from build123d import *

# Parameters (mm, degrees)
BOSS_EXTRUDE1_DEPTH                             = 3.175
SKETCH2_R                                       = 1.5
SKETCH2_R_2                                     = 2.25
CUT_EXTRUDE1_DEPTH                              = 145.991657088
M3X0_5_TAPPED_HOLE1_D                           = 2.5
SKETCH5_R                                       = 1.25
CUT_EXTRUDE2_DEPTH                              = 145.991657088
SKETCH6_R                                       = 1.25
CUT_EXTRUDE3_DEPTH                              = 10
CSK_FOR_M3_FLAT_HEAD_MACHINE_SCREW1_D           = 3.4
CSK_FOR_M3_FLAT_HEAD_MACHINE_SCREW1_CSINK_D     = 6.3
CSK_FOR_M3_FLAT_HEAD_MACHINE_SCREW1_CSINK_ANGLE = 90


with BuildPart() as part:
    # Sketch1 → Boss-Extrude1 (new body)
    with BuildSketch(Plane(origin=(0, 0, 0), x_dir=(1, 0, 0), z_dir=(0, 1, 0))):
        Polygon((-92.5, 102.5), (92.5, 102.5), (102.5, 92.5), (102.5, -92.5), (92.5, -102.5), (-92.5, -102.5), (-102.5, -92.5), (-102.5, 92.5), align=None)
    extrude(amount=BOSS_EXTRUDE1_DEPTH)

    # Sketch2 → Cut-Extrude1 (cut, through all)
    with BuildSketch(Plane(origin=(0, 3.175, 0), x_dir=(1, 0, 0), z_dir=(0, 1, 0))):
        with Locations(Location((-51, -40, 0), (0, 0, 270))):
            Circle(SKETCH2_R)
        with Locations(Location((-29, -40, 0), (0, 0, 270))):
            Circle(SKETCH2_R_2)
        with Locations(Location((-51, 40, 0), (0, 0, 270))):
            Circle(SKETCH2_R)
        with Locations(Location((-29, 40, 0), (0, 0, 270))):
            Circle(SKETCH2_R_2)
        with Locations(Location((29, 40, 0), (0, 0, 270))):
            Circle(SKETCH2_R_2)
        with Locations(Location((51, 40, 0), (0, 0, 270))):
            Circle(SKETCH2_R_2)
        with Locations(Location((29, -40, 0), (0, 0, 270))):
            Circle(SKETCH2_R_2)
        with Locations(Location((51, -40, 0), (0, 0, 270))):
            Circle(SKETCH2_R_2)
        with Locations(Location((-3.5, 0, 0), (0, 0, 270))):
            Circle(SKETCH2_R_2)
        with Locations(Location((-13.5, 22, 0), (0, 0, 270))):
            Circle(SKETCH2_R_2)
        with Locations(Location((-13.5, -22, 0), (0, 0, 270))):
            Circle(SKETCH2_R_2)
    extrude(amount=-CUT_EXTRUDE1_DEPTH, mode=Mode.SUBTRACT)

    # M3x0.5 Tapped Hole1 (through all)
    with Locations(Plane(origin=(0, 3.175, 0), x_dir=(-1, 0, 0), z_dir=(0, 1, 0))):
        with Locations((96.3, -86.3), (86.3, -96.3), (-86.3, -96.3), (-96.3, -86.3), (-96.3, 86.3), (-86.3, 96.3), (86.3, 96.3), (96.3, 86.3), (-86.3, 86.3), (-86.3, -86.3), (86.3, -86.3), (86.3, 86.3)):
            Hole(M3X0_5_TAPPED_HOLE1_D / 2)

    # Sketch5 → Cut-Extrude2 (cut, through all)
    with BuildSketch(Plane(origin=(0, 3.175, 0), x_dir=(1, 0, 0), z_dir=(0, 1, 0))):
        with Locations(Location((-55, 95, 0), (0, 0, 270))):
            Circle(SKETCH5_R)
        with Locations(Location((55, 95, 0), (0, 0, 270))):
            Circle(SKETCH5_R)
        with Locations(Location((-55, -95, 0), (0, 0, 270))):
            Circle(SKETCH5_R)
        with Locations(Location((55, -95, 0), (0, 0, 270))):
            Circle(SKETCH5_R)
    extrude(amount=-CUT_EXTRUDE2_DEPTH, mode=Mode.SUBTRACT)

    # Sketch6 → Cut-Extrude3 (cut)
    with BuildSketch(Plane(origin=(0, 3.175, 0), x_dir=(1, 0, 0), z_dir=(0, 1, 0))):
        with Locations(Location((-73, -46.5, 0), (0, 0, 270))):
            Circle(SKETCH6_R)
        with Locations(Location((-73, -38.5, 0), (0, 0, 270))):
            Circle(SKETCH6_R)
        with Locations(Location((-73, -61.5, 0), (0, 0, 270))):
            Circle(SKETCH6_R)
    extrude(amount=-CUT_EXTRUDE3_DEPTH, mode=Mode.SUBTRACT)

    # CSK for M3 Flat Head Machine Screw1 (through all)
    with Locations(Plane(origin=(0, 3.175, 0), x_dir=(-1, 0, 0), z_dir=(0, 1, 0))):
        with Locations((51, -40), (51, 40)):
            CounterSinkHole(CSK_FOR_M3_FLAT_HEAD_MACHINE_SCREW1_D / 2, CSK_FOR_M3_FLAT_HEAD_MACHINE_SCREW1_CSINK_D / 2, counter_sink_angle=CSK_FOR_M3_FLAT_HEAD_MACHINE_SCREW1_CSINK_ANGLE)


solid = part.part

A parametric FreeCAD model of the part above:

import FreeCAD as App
import Part
import Sketcher

doc = App.newDocument("Part")
params = doc.addObject("Spreadsheet::Sheet", "Params")
for row, (alias, value) in enumerate([
    ("sketch1_width", "185 mm"),
    ("pad1_length", "3.175 mm"),
    ("sketch2_diameter", "3 mm"),
    ("sketch2_diameter2", "4.5 mm"),
    ("sketch3_diameter", "2.5 mm"),
    ("hole_diameter", "2.5 mm"),
    ("sketch4_diameter", "2.5 mm"),
    ("sketch5_diameter", "2.5 mm"),
    ("pocket3_length", "10 mm"),
    ("sketch6_diameter", "3.4 mm"),
    ("hole2_diameter", "3.4 mm"),
    ("hole2_csink_diameter", "6.3 mm"),
], start=1):
    params.set(f"A{row}", alias)
    params.set(f"B{row}", "=" + value)
    params.setAlias(f"B{row}", alias)

body = doc.addObject("PartDesign::Body", "Body")

# Sketch on XZ plane
sketch1 = body.newObject("Sketcher::SketchObject", "Sketch")
sketch1.AttachmentSupport = (doc.getObject("XZ_Plane"), [""])
sketch1.MapMode = "FlatFace"
sketch1.addGeometry(Part.LineSegment(App.Vector(92, -102, 0), App.Vector(-92, -102, 0)), False)
sketch1.addGeometry(Part.LineSegment(App.Vector(-92, -102, 0), App.Vector(-102, -92, 0)), False)
sketch1.addGeometry(Part.LineSegment(App.Vector(-102, -92, 0), App.Vector(-102, 92, 0)), False)
sketch1.addGeometry(Part.LineSegment(App.Vector(-102, 92, 0), App.Vector(-92, 102, 0)), False)
sketch1.addGeometry(Part.LineSegment(App.Vector(-92, 102, 0), App.Vector(92, 102, 0)), False)
sketch1.addGeometry(Part.LineSegment(App.Vector(92, 102, 0), App.Vector(102, 92, 0)), False)
sketch1.addGeometry(Part.LineSegment(App.Vector(102, 92, 0), App.Vector(102, -92, 0)), False)
sketch1.addGeometry(Part.LineSegment(App.Vector(102, -92, 0), App.Vector(92, -102, 0)), False)
sketch1.addConstraint(Sketcher.Constraint("Coincident", 0, 2, 1, 1))
sketch1.addConstraint(Sketcher.Constraint("Coincident", 1, 2, 2, 1))
sketch1.addConstraint(Sketcher.Constraint("Coincident", 2, 2, 3, 1))
sketch1.addConstraint(Sketcher.Constraint("Coincident", 3, 2, 4, 1))
sketch1.addConstraint(Sketcher.Constraint("Coincident", 4, 2, 5, 1))
sketch1.addConstraint(Sketcher.Constraint("Coincident", 5, 2, 6, 1))
sketch1.addConstraint(Sketcher.Constraint("Coincident", 6, 2, 7, 1))
sketch1.addConstraint(Sketcher.Constraint("Coincident", 7, 2, 0, 1))
sketch1.addConstraint(Sketcher.Constraint("Horizontal", 0))
sketch1.addConstraint(Sketcher.Constraint("Vertical", 2))
sketch1.addConstraint(Sketcher.Constraint("Horizontal", 4))
sketch1.addConstraint(Sketcher.Constraint("Vertical", 6))
sketch1.addConstraint(Sketcher.Constraint("Symmetric", 0, 2, 4, 2, -1, 1))
sketch1.addConstraint(Sketcher.Constraint("Symmetric", 1, 2, 5, 2, -1, 1))
sketch1.addConstraint(Sketcher.Constraint("Perpendicular", 1, 3))
sketch1.addConstraint(Sketcher.Constraint("Perpendicular", 5, 7))
sketch1.addConstraint(Sketcher.Constraint("Horizontal", 2, 2, 5, 2))
sketch1.addConstraint(Sketcher.Constraint("Horizontal", 1, 2, 6, 2))
sketch1.addConstraint(Sketcher.Constraint("Vertical", 0, 2, 3, 2))
sketch1.addConstraint(Sketcher.Constraint("Equal", 4, 2))
sketch1.addConstraint(Sketcher.Constraint("DistanceX", 0, 2, 0, 1, 185.0))
sketch1.addConstraint(Sketcher.Constraint("DistanceX", 1, 2, 0, 2, 10.0))
sketch1.setExpression("Constraints[20]", "Params.sketch1_width")
pad1 = body.newObject("PartDesign::Pad", "Pad")
pad1.Profile = sketch1
pad1.setExpression("Length", "Params.pad1_length")
pad1.Reversed = True

# Sketch on XZ plane
sketch2 = body.newObject("Sketcher::SketchObject", "Sketch001")
sketch2.AttachmentSupport = (doc.getObject("XZ_Plane"), [""])
sketch2.MapMode = "FlatFace"
sketch2.AttachmentOffset = App.Placement(App.Vector(0, 0, -3.175), App.Rotation())
sketch2.addGeometry(Part.Circle(App.Vector(-51, 40, 0), App.Vector(0, 0, 1), 1.5), False)
sketch2.addGeometry(Part.Circle(App.Vector(-29, 40, 0), App.Vector(0, 0, 1), 2.2), False)
sketch2.addGeometry(Part.Circle(App.Vector(-51, -40, 0), App.Vector(0, 0, 1), 1.5), False)
sketch2.addGeometry(Part.Circle(App.Vector(-29, -40, 0), App.Vector(0, 0, 1), 2.2), False)
sketch2.addGeometry(Part.Circle(App.Vector(29, -40, 0), App.Vector(0, 0, 1), 2.2), False)
sketch2.addGeometry(Part.Circle(App.Vector(51, -40, 0), App.Vector(0, 0, 1), 2.2), False)
sketch2.addGeometry(Part.Circle(App.Vector(29, 40, 0), App.Vector(0, 0, 1), 2.2), False)
sketch2.addGeometry(Part.Circle(App.Vector(51, 40, 0), App.Vector(0, 0, 1), 2.2), False)
sketch2.addGeometry(Part.Circle(App.Vector(-3.5, 0, 0), App.Vector(0, 0, 1), 2.2), False)
sketch2.addGeometry(Part.Circle(App.Vector(-13.5, -22, 0), App.Vector(0, 0, 1), 2.2), False)
sketch2.addGeometry(Part.Circle(App.Vector(-13.5, 22, 0), App.Vector(0, 0, 1), 2.2), False)
sketch2.addConstraint(Sketcher.Constraint("Equal", 0, 2))
sketch2.addConstraint(Sketcher.Constraint("Equal", 1, 3))
sketch2.addConstraint(Sketcher.Constraint("Equal", 3, 4))
sketch2.addConstraint(Sketcher.Constraint("Equal", 4, 5))
sketch2.addConstraint(Sketcher.Constraint("Equal", 5, 6))
sketch2.addConstraint(Sketcher.Constraint("Equal", 6, 7))
sketch2.addConstraint(Sketcher.Constraint("Equal", 7, 8))
sketch2.addConstraint(Sketcher.Constraint("Equal", 8, 9))
sketch2.addConstraint(Sketcher.Constraint("Equal", 9, 10))
sketch2.addConstraint(Sketcher.Constraint("Symmetric", 1, 3, 4, 3, -1, 1))
sketch2.addConstraint(Sketcher.Constraint("Symmetric", 0, 3, 5, 3, -1, 1))
sketch2.addConstraint(Sketcher.Constraint("Symmetric", 3, 3, 6, 3, -1, 1))
sketch2.addConstraint(Sketcher.Constraint("Symmetric", 2, 3, 7, 3, -1, 1))
sketch2.addConstraint(Sketcher.Constraint("Symmetric", 3, 3, 4, 3, -2))
sketch2.addConstraint(Sketcher.Constraint("Symmetric", 2, 3, 5, 3, -2))
sketch2.addConstraint(Sketcher.Constraint("Symmetric", 9, 3, 10, 3, -1))
sketch2.addConstraint(Sketcher.Constraint("PointOnObject", 8, 3, -1))
sketch2.addConstraint(Sketcher.Constraint("Horizontal", 0, 3, 1, 3))
sketch2.addConstraint(Sketcher.Constraint("Diameter", 0, 3.0))
sketch2.addConstraint(Sketcher.Constraint("Diameter", 1, 4.5))
sketch2.addConstraint(Sketcher.Constraint("DistanceX", 0, 3, -1, 1, 51.0))
sketch2.addConstraint(Sketcher.Constraint("DistanceY", -1, 1, 0, 3, 40.0))
sketch2.addConstraint(Sketcher.Constraint("DistanceX", 1, 3, -1, 1, 29.0))
sketch2.addConstraint(Sketcher.Constraint("DistanceY", 9, 3, -1, 1, 22.0))
sketch2.addConstraint(Sketcher.Constraint("DistanceX", 9, 3, 8, 3, 10.0))
sketch2.addConstraint(Sketcher.Constraint("DistanceX", 8, 3, -1, 1, 3.5))
sketch2.setExpression("Constraints[18]", "Params.sketch2_diameter")
sketch2.setExpression("Constraints[19]", "Params.sketch2_diameter2")
pocket1 = body.newObject("PartDesign::Pocket", "Pocket")
pocket1.Profile = sketch2
pocket1.Type = "ThroughAll"
pocket1.Reversed = True

# Sketch on XZ plane
sketch3 = body.newObject("Sketcher::SketchObject", "Sketch002")
sketch3.AttachmentSupport = (doc.getObject("XZ_Plane"), [""])
sketch3.MapMode = "FlatFace"
sketch3.AttachmentOffset = App.Placement(App.Vector(0, 0, -3.175), App.Rotation())
sketch3.addGeometry(Part.Circle(App.Vector(-96.3, -86.3, 0), App.Vector(0, 0, 1), 1.2), False)
sketch3.addGeometry(Part.Circle(App.Vector(-86.3, -96.3, 0), App.Vector(0, 0, 1), 1.2), False)
sketch3.addGeometry(Part.Circle(App.Vector(86.3, -96.3, 0), App.Vector(0, 0, 1), 1.2), False)
sketch3.addGeometry(Part.Circle(App.Vector(96.3, -86.3, 0), App.Vector(0, 0, 1), 1.2), False)
sketch3.addGeometry(Part.Circle(App.Vector(96.3, 86.3, 0), App.Vector(0, 0, 1), 1.2), False)
sketch3.addGeometry(Part.Circle(App.Vector(86.3, 96.3, 0), App.Vector(0, 0, 1), 1.2), False)
sketch3.addGeometry(Part.Circle(App.Vector(-86.3, 96.3, 0), App.Vector(0, 0, 1), 1.2), False)
sketch3.addGeometry(Part.Circle(App.Vector(-96.3, 86.3, 0), App.Vector(0, 0, 1), 1.2), False)
sketch3.addGeometry(Part.Circle(App.Vector(86.3, 86.3, 0), App.Vector(0, 0, 1), 1.2), False)
sketch3.addGeometry(Part.Circle(App.Vector(86.3, -86.3, 0), App.Vector(0, 0, 1), 1.2), False)
sketch3.addGeometry(Part.Circle(App.Vector(-86.3, -86.3, 0), App.Vector(0, 0, 1), 1.2), False)
sketch3.addGeometry(Part.Circle(App.Vector(-86.3, 86.3, 0), App.Vector(0, 0, 1), 1.2), False)
sketch3.addConstraint(Sketcher.Constraint("Equal", 0, 1))
sketch3.addConstraint(Sketcher.Constraint("Equal", 1, 2))
sketch3.addConstraint(Sketcher.Constraint("Equal", 2, 3))
sketch3.addConstraint(Sketcher.Constraint("Equal", 3, 4))
sketch3.addConstraint(Sketcher.Constraint("Equal", 4, 5))
sketch3.addConstraint(Sketcher.Constraint("Equal", 5, 6))
sketch3.addConstraint(Sketcher.Constraint("Equal", 6, 7))
sketch3.addConstraint(Sketcher.Constraint("Equal", 7, 8))
sketch3.addConstraint(Sketcher.Constraint("Equal", 8, 9))
sketch3.addConstraint(Sketcher.Constraint("Equal", 9, 10))
sketch3.addConstraint(Sketcher.Constraint("Equal", 10, 11))
sketch3.addConstraint(Sketcher.Constraint("Symmetric", 0, 3, 4, 3, -1, 1))
sketch3.addConstraint(Sketcher.Constraint("Symmetric", 1, 3, 5, 3, -1, 1))
sketch3.addConstraint(Sketcher.Constraint("Symmetric", 2, 3, 6, 3, -1, 1))
sketch3.addConstraint(Sketcher.Constraint("Symmetric", 3, 3, 7, 3, -1, 1))
sketch3.addConstraint(Sketcher.Constraint("Symmetric", 8, 3, 10, 3, -1, 1))
sketch3.addConstraint(Sketcher.Constraint("Symmetric", 9, 3, 11, 3, -1, 1))
sketch3.addConstraint(Sketcher.Constraint("Symmetric", 1, 3, 2, 3, -2))
sketch3.addConstraint(Sketcher.Constraint("Symmetric", 0, 3, 3, 3, -2))
sketch3.addConstraint(Sketcher.Constraint("Symmetric", 9, 3, 10, 3, -2))
sketch3.addConstraint(Sketcher.Constraint("Horizontal", 7, 3, 8, 3))
sketch3.addConstraint(Sketcher.Constraint("Vertical", 5, 3, 8, 3))
sketch3.addConstraint(Sketcher.Constraint("Diameter", 0, 2.5))
sketch3.addConstraint(Sketcher.Constraint("DistanceX", 0, 3, 1, 3, 10.0))
sketch3.addConstraint(Sketcher.Constraint("DistanceY", 1, 3, 0, 3, 10.0))
sketch3.addConstraint(Sketcher.Constraint("DistanceX", 0, 3, -1, 1, 96.3))
sketch3.addConstraint(Sketcher.Constraint("DistanceY", 0, 3, -1, 1, 86.3))
sketch3.setExpression("Constraints[22]", "Params.sketch3_diameter")
doc.recompute()
hole = body.newObject("PartDesign::Hole", "Hole")
hole.Profile = sketch3
hole.ThreadType = "None"
hole.setExpression("Diameter", "Params.hole_diameter")
hole.DepthType = "ThroughAll"
hole.Reversed = True

# Sketch on XZ plane
sketch4 = body.newObject("Sketcher::SketchObject", "Sketch003")
sketch4.AttachmentSupport = (doc.getObject("XZ_Plane"), [""])
sketch4.MapMode = "FlatFace"
sketch4.AttachmentOffset = App.Placement(App.Vector(0, 0, -3.175), App.Rotation())
sketch4.addGeometry(Part.Circle(App.Vector(-55, -95, 0), App.Vector(0, 0, 1), 1.2), False)
sketch4.addGeometry(Part.Circle(App.Vector(55, -95, 0), App.Vector(0, 0, 1), 1.2), False)
sketch4.addGeometry(Part.Circle(App.Vector(-55, 95, 0), App.Vector(0, 0, 1), 1.2), False)
sketch4.addGeometry(Part.Circle(App.Vector(55, 95, 0), App.Vector(0, 0, 1), 1.2), False)
sketch4.addConstraint(Sketcher.Constraint("Equal", 0, 1))
sketch4.addConstraint(Sketcher.Constraint("Equal", 1, 2))
sketch4.addConstraint(Sketcher.Constraint("Equal", 2, 3))
sketch4.addConstraint(Sketcher.Constraint("Symmetric", 1, 3, 2, 3, -1, 1))
sketch4.addConstraint(Sketcher.Constraint("Symmetric", 0, 3, 3, 3, -1, 1))
sketch4.addConstraint(Sketcher.Constraint("Symmetric", 0, 3, 1, 3, -2))
sketch4.addConstraint(Sketcher.Constraint("Diameter", 0, 2.5))
sketch4.addConstraint(Sketcher.Constraint("DistanceX", 0, 3, -1, 1, 55.0))
sketch4.addConstraint(Sketcher.Constraint("DistanceY", 0, 3, -1, 1, 95.0))
sketch4.setExpression("Constraints[6]", "Params.sketch4_diameter")
pocket2 = body.newObject("PartDesign::Pocket", "Pocket001")
pocket2.Profile = sketch4
pocket2.Type = "ThroughAll"
pocket2.Reversed = True

# Sketch on XZ plane
sketch5 = body.newObject("Sketcher::SketchObject", "Sketch004")
sketch5.AttachmentSupport = (doc.getObject("XZ_Plane"), [""])
sketch5.MapMode = "FlatFace"
sketch5.AttachmentOffset = App.Placement(App.Vector(0, 0, -3.175), App.Rotation())
sketch5.addGeometry(Part.Circle(App.Vector(-73, 46.5, 0), App.Vector(0, 0, 1), 1.2), False)
sketch5.addGeometry(Part.Circle(App.Vector(-73, 38.5, 0), App.Vector(0, 0, 1), 1.2), False)
sketch5.addGeometry(Part.Circle(App.Vector(-73, 61.5, 0), App.Vector(0, 0, 1), 1.2), False)
sketch5.addConstraint(Sketcher.Constraint("Equal", 0, 1))
sketch5.addConstraint(Sketcher.Constraint("Equal", 1, 2))
sketch5.addConstraint(Sketcher.Constraint("Vertical", 0, 3, 1, 3))
sketch5.addConstraint(Sketcher.Constraint("Vertical", 1, 3, 2, 3))
sketch5.addConstraint(Sketcher.Constraint("Diameter", 0, 2.5))
sketch5.addConstraint(Sketcher.Constraint("DistanceX", 0, 3, -1, 1, 73.0))
sketch5.addConstraint(Sketcher.Constraint("DistanceY", 1, 3, 0, 3, 8.0))
sketch5.addConstraint(Sketcher.Constraint("DistanceY", 0, 3, 2, 3, 15.0))
sketch5.addConstraint(Sketcher.Constraint("DistanceY", -1, 1, 0, 3, 46.5))
sketch5.setExpression("Constraints[4]", "Params.sketch5_diameter")
pocket3 = body.newObject("PartDesign::Pocket", "Pocket002")
pocket3.Profile = sketch5
pocket3.setExpression("Length", "Params.pocket3_length")
pocket3.Reversed = True

# Sketch on XZ plane
sketch6 = body.newObject("Sketcher::SketchObject", "Sketch005")
sketch6.AttachmentSupport = (doc.getObject("XZ_Plane"), [""])
sketch6.MapMode = "FlatFace"
sketch6.AttachmentOffset = App.Placement(App.Vector(0, 0, -3.175), App.Rotation())
sketch6.addGeometry(Part.Circle(App.Vector(-51, -40, 0), App.Vector(0, 0, 1), 1.7), False)
sketch6.addGeometry(Part.Circle(App.Vector(-51, 40, 0), App.Vector(0, 0, 1), 1.7), False)
sketch6.addConstraint(Sketcher.Constraint("Equal", 0, 1))
sketch6.addConstraint(Sketcher.Constraint("Symmetric", 0, 3, 1, 3, -1))
sketch6.addConstraint(Sketcher.Constraint("Diameter", 0, 3.4))
sketch6.addConstraint(Sketcher.Constraint("DistanceX", 0, 3, -1, 1, 51.0))
sketch6.addConstraint(Sketcher.Constraint("DistanceY", 0, 3, -1, 1, 40.0))
sketch6.setExpression("Constraints[2]", "Params.sketch6_diameter")
doc.recompute()
hole2 = body.newObject("PartDesign::Hole", "Hole001")
hole2.Profile = sketch6
hole2.ThreadType = "None"
hole2.setExpression("Diameter", "Params.hole2_diameter")
hole2.DepthType = "ThroughAll"
hole2.HoleCutType = "Countersink"
hole2.setExpression("HoleCutDiameter", "Params.hole2_csink_diameter")
hole2.HoleCutCountersinkAngle = 90
hole2.Reversed = True

doc.recompute()
